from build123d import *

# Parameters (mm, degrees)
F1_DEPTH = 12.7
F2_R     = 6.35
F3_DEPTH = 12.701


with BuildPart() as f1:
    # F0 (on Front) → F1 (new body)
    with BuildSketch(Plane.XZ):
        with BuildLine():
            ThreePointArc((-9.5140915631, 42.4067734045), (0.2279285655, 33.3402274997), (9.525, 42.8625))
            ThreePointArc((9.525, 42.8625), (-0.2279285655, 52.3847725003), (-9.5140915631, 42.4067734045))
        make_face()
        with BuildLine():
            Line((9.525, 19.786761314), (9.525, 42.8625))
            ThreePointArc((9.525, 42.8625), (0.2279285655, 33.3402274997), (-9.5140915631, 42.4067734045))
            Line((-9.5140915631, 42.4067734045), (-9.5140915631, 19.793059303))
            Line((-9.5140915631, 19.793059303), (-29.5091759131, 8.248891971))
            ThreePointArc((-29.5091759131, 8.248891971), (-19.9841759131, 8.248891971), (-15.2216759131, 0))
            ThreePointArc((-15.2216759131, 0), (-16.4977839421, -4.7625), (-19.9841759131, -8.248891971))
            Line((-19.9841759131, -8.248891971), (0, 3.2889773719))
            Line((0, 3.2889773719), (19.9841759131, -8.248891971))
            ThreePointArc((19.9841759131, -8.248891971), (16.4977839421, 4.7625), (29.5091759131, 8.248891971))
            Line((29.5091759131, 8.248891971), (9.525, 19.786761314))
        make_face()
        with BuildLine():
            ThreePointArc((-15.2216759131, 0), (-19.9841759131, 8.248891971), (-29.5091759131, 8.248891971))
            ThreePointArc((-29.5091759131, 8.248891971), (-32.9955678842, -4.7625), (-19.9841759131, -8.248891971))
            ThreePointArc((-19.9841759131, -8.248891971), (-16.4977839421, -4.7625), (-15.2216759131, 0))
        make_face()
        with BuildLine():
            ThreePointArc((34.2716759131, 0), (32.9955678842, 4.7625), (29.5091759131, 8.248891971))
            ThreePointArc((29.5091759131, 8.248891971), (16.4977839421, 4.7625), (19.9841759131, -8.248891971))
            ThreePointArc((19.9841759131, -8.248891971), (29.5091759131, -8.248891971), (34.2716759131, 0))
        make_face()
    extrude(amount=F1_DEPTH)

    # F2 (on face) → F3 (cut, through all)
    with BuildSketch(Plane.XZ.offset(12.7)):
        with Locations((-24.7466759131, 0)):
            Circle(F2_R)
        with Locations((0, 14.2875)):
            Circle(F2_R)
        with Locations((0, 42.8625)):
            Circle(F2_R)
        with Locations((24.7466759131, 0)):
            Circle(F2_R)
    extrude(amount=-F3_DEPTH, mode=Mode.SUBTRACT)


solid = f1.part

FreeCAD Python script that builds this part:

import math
import FreeCAD as App
import Part
import Sketcher
from FreeCAD import Vector
Q = App.Units.Quantity

doc = App.newDocument("Part")
body = doc.addObject("PartDesign::Body", "Body")

sketch1 = body.newObject("Sketcher::SketchObject", "Sketch")
sketch1.AttachmentSupport = (doc.getObject("XZ_Plane"), [""])
sketch1.MapMode = "FlatFace"
sketch1.addGeometry([
    Part.ArcOfCircle(Part.Circle(Vector(0, 42.8625, 0), Vector(0, 0, 1), 9.525), math.radians(0), math.radians(182.742381)),
    Part.LineSegment(Vector(-9.514092, 42.406773, 0), Vector(-9.514092, 19.793059, 0)),
    Part.LineSegment(Vector(-9.514092, 19.793059, 0), Vector(-29.509176, 8.248892, 0)),
    Part.ArcOfCircle(Part.Circle(Vector(-24.746676, 0, 0), Vector(0, 0, 1), 9.525), math.radians(120), math.radians(300)),
    Part.LineSegment(Vector(-19.984176, -8.248892, 0), Vector(0, 3.288977, 0)),
    Part.LineSegment(Vector(0, 3.288977, 0), Vector(19.984176, -8.248892, 0)),
    Part.ArcOfCircle(Part.Circle(Vector(24.746676, 0, 0), Vector(0, 0, 1), 9.525), math.radians(-120), math.radians(0)),
    Part.ArcOfCircle(Part.Circle(Vector(24.746676, 0, 0), Vector(0, 0, 1), 9.525), math.radians(0), math.radians(60)),
    Part.LineSegment(Vector(29.509176, 8.248892, 0), Vector(9.525, 19.786761, 0)),
    Part.LineSegment(Vector(9.525, 19.786761, 0), Vector(9.525, 42.8625, 0)),
], False)
sketch1.addConstraint([
    Sketcher.Constraint("Coincident", 0, 2, 1, 1),
    Sketcher.Constraint("Coincident", 1, 2, 2, 1),
    Sketcher.Constraint("Tangent", 2, 2, 3, 1),
    Sketcher.Constraint("Tangent", 3, 2, 4, 1),
    Sketcher.Constraint("Coincident", 4, 2, 5, 1),
    Sketcher.Constraint("Tangent", 5, 2, 6, 1),
    Sketcher.Constraint("Tangent", 6, 2, 7, 1),
    Sketcher.Constraint("Tangent", 7, 2, 8, 1),
    Sketcher.Constraint("Coincident", 8, 2, 9, 1),
    Sketcher.Constraint("Tangent", 9, 2, 0, 1),
    Sketcher.Constraint("Vertical", 1),
    Sketcher.Constraint("Vertical", 9),
    Sketcher.Constraint("Equal", 0, 3),
    Sketcher.Constraint("Equal", 3, 6),
    Sketcher.Constraint("Equal", 6, 7),
    Sketcher.Constraint("Symmetric", 3, 3, 6, 3, -1, 1),
    Sketcher.Constraint("Symmetric", 3, 2, 5, 2, -2),
    Sketcher.Constraint("PointOnObject", 0, 3, -2),
    Sketcher.Constraint("PointOnObject", 6, 2, -1),
    Sketcher.Constraint("Parallel", 2, 4),
    Sketcher.Constraint("Parallel", 5, 8),
    Sketcher.Constraint("Equal", 5, 8),
    Sketcher.Constraint("Radius", 0, Q("0.375 in")),
    Sketcher.Constraint("DistanceY", -1, 1, 0, 3, Q("1.6875 in")),
    Sketcher.Constraint("DistanceY", 9, 1, 9, 2, 23.075739),
    Sketcher.Constraint("DistanceY", 1, 2, 1, 1, 22.613714),
])
pad1 = body.newObject("PartDesign::Pad", "Pad")
pad1.Profile = sketch1
pad1.Length = Q("0.5 in")

sketch2 = body.newObject("Sketcher::SketchObject", "Sketch001")
sketch2.AttachmentSupport = (doc.getObject("XZ_Plane"), [""])
sketch2.MapMode = "FlatFace"
sketch2.AttachmentOffset = App.Placement(Vector(0, 0, 0.5 * 25.4), App.Rotation())
sketch2.addGeometry([
    Part.Circle(Vector(-24.746676, 0, 0), Vector(0, 0, 1), 6.35),
    Part.Circle(Vector(0, 14.2875, 0), Vector(0, 0, 1), 6.35),
    Part.Circle(Vector(0, 42.8625, 0), Vector(0, 0, 1), 6.35),
    Part.Circle(Vector(24.746676, 0, 0), Vector(0, 0, 1), 6.35),
], False)
sketch2.addConstraint([
    Sketcher.Constraint("Equal", 0, 1),
    Sketcher.Constraint("Equal", 1, 2),
    Sketcher.Constraint("Equal", 2, 3),
    Sketcher.Constraint("Symmetric", 0, 3, 3, 3, -1, 1),
    Sketcher.Constraint("PointOnObject", 0, 3, -1),
    Sketcher.Constraint("PointOnObject", 1, 3, -2),
    Sketcher.Constraint("PointOnObject", 2, 3, -2),
    Sketcher.Constraint("Diameter", 0, Q("0.5 in")),
    Sketcher.Constraint("DistanceY", -1, 1, 1, 3, Q("0.5625 in")),
    Sketcher.Constraint("DistanceY", -1, 1, 2, 3, Q("1.6875 in")),
    Sketcher.Constraint("DistanceX", 0, 3, 3, 3, 49.493352),
])
pocket1 = body.newObject("PartDesign::Pocket", "Pocket")
pocket1.Profile = sketch2
pocket1.Type = "ThroughAll"

doc.recompute()
